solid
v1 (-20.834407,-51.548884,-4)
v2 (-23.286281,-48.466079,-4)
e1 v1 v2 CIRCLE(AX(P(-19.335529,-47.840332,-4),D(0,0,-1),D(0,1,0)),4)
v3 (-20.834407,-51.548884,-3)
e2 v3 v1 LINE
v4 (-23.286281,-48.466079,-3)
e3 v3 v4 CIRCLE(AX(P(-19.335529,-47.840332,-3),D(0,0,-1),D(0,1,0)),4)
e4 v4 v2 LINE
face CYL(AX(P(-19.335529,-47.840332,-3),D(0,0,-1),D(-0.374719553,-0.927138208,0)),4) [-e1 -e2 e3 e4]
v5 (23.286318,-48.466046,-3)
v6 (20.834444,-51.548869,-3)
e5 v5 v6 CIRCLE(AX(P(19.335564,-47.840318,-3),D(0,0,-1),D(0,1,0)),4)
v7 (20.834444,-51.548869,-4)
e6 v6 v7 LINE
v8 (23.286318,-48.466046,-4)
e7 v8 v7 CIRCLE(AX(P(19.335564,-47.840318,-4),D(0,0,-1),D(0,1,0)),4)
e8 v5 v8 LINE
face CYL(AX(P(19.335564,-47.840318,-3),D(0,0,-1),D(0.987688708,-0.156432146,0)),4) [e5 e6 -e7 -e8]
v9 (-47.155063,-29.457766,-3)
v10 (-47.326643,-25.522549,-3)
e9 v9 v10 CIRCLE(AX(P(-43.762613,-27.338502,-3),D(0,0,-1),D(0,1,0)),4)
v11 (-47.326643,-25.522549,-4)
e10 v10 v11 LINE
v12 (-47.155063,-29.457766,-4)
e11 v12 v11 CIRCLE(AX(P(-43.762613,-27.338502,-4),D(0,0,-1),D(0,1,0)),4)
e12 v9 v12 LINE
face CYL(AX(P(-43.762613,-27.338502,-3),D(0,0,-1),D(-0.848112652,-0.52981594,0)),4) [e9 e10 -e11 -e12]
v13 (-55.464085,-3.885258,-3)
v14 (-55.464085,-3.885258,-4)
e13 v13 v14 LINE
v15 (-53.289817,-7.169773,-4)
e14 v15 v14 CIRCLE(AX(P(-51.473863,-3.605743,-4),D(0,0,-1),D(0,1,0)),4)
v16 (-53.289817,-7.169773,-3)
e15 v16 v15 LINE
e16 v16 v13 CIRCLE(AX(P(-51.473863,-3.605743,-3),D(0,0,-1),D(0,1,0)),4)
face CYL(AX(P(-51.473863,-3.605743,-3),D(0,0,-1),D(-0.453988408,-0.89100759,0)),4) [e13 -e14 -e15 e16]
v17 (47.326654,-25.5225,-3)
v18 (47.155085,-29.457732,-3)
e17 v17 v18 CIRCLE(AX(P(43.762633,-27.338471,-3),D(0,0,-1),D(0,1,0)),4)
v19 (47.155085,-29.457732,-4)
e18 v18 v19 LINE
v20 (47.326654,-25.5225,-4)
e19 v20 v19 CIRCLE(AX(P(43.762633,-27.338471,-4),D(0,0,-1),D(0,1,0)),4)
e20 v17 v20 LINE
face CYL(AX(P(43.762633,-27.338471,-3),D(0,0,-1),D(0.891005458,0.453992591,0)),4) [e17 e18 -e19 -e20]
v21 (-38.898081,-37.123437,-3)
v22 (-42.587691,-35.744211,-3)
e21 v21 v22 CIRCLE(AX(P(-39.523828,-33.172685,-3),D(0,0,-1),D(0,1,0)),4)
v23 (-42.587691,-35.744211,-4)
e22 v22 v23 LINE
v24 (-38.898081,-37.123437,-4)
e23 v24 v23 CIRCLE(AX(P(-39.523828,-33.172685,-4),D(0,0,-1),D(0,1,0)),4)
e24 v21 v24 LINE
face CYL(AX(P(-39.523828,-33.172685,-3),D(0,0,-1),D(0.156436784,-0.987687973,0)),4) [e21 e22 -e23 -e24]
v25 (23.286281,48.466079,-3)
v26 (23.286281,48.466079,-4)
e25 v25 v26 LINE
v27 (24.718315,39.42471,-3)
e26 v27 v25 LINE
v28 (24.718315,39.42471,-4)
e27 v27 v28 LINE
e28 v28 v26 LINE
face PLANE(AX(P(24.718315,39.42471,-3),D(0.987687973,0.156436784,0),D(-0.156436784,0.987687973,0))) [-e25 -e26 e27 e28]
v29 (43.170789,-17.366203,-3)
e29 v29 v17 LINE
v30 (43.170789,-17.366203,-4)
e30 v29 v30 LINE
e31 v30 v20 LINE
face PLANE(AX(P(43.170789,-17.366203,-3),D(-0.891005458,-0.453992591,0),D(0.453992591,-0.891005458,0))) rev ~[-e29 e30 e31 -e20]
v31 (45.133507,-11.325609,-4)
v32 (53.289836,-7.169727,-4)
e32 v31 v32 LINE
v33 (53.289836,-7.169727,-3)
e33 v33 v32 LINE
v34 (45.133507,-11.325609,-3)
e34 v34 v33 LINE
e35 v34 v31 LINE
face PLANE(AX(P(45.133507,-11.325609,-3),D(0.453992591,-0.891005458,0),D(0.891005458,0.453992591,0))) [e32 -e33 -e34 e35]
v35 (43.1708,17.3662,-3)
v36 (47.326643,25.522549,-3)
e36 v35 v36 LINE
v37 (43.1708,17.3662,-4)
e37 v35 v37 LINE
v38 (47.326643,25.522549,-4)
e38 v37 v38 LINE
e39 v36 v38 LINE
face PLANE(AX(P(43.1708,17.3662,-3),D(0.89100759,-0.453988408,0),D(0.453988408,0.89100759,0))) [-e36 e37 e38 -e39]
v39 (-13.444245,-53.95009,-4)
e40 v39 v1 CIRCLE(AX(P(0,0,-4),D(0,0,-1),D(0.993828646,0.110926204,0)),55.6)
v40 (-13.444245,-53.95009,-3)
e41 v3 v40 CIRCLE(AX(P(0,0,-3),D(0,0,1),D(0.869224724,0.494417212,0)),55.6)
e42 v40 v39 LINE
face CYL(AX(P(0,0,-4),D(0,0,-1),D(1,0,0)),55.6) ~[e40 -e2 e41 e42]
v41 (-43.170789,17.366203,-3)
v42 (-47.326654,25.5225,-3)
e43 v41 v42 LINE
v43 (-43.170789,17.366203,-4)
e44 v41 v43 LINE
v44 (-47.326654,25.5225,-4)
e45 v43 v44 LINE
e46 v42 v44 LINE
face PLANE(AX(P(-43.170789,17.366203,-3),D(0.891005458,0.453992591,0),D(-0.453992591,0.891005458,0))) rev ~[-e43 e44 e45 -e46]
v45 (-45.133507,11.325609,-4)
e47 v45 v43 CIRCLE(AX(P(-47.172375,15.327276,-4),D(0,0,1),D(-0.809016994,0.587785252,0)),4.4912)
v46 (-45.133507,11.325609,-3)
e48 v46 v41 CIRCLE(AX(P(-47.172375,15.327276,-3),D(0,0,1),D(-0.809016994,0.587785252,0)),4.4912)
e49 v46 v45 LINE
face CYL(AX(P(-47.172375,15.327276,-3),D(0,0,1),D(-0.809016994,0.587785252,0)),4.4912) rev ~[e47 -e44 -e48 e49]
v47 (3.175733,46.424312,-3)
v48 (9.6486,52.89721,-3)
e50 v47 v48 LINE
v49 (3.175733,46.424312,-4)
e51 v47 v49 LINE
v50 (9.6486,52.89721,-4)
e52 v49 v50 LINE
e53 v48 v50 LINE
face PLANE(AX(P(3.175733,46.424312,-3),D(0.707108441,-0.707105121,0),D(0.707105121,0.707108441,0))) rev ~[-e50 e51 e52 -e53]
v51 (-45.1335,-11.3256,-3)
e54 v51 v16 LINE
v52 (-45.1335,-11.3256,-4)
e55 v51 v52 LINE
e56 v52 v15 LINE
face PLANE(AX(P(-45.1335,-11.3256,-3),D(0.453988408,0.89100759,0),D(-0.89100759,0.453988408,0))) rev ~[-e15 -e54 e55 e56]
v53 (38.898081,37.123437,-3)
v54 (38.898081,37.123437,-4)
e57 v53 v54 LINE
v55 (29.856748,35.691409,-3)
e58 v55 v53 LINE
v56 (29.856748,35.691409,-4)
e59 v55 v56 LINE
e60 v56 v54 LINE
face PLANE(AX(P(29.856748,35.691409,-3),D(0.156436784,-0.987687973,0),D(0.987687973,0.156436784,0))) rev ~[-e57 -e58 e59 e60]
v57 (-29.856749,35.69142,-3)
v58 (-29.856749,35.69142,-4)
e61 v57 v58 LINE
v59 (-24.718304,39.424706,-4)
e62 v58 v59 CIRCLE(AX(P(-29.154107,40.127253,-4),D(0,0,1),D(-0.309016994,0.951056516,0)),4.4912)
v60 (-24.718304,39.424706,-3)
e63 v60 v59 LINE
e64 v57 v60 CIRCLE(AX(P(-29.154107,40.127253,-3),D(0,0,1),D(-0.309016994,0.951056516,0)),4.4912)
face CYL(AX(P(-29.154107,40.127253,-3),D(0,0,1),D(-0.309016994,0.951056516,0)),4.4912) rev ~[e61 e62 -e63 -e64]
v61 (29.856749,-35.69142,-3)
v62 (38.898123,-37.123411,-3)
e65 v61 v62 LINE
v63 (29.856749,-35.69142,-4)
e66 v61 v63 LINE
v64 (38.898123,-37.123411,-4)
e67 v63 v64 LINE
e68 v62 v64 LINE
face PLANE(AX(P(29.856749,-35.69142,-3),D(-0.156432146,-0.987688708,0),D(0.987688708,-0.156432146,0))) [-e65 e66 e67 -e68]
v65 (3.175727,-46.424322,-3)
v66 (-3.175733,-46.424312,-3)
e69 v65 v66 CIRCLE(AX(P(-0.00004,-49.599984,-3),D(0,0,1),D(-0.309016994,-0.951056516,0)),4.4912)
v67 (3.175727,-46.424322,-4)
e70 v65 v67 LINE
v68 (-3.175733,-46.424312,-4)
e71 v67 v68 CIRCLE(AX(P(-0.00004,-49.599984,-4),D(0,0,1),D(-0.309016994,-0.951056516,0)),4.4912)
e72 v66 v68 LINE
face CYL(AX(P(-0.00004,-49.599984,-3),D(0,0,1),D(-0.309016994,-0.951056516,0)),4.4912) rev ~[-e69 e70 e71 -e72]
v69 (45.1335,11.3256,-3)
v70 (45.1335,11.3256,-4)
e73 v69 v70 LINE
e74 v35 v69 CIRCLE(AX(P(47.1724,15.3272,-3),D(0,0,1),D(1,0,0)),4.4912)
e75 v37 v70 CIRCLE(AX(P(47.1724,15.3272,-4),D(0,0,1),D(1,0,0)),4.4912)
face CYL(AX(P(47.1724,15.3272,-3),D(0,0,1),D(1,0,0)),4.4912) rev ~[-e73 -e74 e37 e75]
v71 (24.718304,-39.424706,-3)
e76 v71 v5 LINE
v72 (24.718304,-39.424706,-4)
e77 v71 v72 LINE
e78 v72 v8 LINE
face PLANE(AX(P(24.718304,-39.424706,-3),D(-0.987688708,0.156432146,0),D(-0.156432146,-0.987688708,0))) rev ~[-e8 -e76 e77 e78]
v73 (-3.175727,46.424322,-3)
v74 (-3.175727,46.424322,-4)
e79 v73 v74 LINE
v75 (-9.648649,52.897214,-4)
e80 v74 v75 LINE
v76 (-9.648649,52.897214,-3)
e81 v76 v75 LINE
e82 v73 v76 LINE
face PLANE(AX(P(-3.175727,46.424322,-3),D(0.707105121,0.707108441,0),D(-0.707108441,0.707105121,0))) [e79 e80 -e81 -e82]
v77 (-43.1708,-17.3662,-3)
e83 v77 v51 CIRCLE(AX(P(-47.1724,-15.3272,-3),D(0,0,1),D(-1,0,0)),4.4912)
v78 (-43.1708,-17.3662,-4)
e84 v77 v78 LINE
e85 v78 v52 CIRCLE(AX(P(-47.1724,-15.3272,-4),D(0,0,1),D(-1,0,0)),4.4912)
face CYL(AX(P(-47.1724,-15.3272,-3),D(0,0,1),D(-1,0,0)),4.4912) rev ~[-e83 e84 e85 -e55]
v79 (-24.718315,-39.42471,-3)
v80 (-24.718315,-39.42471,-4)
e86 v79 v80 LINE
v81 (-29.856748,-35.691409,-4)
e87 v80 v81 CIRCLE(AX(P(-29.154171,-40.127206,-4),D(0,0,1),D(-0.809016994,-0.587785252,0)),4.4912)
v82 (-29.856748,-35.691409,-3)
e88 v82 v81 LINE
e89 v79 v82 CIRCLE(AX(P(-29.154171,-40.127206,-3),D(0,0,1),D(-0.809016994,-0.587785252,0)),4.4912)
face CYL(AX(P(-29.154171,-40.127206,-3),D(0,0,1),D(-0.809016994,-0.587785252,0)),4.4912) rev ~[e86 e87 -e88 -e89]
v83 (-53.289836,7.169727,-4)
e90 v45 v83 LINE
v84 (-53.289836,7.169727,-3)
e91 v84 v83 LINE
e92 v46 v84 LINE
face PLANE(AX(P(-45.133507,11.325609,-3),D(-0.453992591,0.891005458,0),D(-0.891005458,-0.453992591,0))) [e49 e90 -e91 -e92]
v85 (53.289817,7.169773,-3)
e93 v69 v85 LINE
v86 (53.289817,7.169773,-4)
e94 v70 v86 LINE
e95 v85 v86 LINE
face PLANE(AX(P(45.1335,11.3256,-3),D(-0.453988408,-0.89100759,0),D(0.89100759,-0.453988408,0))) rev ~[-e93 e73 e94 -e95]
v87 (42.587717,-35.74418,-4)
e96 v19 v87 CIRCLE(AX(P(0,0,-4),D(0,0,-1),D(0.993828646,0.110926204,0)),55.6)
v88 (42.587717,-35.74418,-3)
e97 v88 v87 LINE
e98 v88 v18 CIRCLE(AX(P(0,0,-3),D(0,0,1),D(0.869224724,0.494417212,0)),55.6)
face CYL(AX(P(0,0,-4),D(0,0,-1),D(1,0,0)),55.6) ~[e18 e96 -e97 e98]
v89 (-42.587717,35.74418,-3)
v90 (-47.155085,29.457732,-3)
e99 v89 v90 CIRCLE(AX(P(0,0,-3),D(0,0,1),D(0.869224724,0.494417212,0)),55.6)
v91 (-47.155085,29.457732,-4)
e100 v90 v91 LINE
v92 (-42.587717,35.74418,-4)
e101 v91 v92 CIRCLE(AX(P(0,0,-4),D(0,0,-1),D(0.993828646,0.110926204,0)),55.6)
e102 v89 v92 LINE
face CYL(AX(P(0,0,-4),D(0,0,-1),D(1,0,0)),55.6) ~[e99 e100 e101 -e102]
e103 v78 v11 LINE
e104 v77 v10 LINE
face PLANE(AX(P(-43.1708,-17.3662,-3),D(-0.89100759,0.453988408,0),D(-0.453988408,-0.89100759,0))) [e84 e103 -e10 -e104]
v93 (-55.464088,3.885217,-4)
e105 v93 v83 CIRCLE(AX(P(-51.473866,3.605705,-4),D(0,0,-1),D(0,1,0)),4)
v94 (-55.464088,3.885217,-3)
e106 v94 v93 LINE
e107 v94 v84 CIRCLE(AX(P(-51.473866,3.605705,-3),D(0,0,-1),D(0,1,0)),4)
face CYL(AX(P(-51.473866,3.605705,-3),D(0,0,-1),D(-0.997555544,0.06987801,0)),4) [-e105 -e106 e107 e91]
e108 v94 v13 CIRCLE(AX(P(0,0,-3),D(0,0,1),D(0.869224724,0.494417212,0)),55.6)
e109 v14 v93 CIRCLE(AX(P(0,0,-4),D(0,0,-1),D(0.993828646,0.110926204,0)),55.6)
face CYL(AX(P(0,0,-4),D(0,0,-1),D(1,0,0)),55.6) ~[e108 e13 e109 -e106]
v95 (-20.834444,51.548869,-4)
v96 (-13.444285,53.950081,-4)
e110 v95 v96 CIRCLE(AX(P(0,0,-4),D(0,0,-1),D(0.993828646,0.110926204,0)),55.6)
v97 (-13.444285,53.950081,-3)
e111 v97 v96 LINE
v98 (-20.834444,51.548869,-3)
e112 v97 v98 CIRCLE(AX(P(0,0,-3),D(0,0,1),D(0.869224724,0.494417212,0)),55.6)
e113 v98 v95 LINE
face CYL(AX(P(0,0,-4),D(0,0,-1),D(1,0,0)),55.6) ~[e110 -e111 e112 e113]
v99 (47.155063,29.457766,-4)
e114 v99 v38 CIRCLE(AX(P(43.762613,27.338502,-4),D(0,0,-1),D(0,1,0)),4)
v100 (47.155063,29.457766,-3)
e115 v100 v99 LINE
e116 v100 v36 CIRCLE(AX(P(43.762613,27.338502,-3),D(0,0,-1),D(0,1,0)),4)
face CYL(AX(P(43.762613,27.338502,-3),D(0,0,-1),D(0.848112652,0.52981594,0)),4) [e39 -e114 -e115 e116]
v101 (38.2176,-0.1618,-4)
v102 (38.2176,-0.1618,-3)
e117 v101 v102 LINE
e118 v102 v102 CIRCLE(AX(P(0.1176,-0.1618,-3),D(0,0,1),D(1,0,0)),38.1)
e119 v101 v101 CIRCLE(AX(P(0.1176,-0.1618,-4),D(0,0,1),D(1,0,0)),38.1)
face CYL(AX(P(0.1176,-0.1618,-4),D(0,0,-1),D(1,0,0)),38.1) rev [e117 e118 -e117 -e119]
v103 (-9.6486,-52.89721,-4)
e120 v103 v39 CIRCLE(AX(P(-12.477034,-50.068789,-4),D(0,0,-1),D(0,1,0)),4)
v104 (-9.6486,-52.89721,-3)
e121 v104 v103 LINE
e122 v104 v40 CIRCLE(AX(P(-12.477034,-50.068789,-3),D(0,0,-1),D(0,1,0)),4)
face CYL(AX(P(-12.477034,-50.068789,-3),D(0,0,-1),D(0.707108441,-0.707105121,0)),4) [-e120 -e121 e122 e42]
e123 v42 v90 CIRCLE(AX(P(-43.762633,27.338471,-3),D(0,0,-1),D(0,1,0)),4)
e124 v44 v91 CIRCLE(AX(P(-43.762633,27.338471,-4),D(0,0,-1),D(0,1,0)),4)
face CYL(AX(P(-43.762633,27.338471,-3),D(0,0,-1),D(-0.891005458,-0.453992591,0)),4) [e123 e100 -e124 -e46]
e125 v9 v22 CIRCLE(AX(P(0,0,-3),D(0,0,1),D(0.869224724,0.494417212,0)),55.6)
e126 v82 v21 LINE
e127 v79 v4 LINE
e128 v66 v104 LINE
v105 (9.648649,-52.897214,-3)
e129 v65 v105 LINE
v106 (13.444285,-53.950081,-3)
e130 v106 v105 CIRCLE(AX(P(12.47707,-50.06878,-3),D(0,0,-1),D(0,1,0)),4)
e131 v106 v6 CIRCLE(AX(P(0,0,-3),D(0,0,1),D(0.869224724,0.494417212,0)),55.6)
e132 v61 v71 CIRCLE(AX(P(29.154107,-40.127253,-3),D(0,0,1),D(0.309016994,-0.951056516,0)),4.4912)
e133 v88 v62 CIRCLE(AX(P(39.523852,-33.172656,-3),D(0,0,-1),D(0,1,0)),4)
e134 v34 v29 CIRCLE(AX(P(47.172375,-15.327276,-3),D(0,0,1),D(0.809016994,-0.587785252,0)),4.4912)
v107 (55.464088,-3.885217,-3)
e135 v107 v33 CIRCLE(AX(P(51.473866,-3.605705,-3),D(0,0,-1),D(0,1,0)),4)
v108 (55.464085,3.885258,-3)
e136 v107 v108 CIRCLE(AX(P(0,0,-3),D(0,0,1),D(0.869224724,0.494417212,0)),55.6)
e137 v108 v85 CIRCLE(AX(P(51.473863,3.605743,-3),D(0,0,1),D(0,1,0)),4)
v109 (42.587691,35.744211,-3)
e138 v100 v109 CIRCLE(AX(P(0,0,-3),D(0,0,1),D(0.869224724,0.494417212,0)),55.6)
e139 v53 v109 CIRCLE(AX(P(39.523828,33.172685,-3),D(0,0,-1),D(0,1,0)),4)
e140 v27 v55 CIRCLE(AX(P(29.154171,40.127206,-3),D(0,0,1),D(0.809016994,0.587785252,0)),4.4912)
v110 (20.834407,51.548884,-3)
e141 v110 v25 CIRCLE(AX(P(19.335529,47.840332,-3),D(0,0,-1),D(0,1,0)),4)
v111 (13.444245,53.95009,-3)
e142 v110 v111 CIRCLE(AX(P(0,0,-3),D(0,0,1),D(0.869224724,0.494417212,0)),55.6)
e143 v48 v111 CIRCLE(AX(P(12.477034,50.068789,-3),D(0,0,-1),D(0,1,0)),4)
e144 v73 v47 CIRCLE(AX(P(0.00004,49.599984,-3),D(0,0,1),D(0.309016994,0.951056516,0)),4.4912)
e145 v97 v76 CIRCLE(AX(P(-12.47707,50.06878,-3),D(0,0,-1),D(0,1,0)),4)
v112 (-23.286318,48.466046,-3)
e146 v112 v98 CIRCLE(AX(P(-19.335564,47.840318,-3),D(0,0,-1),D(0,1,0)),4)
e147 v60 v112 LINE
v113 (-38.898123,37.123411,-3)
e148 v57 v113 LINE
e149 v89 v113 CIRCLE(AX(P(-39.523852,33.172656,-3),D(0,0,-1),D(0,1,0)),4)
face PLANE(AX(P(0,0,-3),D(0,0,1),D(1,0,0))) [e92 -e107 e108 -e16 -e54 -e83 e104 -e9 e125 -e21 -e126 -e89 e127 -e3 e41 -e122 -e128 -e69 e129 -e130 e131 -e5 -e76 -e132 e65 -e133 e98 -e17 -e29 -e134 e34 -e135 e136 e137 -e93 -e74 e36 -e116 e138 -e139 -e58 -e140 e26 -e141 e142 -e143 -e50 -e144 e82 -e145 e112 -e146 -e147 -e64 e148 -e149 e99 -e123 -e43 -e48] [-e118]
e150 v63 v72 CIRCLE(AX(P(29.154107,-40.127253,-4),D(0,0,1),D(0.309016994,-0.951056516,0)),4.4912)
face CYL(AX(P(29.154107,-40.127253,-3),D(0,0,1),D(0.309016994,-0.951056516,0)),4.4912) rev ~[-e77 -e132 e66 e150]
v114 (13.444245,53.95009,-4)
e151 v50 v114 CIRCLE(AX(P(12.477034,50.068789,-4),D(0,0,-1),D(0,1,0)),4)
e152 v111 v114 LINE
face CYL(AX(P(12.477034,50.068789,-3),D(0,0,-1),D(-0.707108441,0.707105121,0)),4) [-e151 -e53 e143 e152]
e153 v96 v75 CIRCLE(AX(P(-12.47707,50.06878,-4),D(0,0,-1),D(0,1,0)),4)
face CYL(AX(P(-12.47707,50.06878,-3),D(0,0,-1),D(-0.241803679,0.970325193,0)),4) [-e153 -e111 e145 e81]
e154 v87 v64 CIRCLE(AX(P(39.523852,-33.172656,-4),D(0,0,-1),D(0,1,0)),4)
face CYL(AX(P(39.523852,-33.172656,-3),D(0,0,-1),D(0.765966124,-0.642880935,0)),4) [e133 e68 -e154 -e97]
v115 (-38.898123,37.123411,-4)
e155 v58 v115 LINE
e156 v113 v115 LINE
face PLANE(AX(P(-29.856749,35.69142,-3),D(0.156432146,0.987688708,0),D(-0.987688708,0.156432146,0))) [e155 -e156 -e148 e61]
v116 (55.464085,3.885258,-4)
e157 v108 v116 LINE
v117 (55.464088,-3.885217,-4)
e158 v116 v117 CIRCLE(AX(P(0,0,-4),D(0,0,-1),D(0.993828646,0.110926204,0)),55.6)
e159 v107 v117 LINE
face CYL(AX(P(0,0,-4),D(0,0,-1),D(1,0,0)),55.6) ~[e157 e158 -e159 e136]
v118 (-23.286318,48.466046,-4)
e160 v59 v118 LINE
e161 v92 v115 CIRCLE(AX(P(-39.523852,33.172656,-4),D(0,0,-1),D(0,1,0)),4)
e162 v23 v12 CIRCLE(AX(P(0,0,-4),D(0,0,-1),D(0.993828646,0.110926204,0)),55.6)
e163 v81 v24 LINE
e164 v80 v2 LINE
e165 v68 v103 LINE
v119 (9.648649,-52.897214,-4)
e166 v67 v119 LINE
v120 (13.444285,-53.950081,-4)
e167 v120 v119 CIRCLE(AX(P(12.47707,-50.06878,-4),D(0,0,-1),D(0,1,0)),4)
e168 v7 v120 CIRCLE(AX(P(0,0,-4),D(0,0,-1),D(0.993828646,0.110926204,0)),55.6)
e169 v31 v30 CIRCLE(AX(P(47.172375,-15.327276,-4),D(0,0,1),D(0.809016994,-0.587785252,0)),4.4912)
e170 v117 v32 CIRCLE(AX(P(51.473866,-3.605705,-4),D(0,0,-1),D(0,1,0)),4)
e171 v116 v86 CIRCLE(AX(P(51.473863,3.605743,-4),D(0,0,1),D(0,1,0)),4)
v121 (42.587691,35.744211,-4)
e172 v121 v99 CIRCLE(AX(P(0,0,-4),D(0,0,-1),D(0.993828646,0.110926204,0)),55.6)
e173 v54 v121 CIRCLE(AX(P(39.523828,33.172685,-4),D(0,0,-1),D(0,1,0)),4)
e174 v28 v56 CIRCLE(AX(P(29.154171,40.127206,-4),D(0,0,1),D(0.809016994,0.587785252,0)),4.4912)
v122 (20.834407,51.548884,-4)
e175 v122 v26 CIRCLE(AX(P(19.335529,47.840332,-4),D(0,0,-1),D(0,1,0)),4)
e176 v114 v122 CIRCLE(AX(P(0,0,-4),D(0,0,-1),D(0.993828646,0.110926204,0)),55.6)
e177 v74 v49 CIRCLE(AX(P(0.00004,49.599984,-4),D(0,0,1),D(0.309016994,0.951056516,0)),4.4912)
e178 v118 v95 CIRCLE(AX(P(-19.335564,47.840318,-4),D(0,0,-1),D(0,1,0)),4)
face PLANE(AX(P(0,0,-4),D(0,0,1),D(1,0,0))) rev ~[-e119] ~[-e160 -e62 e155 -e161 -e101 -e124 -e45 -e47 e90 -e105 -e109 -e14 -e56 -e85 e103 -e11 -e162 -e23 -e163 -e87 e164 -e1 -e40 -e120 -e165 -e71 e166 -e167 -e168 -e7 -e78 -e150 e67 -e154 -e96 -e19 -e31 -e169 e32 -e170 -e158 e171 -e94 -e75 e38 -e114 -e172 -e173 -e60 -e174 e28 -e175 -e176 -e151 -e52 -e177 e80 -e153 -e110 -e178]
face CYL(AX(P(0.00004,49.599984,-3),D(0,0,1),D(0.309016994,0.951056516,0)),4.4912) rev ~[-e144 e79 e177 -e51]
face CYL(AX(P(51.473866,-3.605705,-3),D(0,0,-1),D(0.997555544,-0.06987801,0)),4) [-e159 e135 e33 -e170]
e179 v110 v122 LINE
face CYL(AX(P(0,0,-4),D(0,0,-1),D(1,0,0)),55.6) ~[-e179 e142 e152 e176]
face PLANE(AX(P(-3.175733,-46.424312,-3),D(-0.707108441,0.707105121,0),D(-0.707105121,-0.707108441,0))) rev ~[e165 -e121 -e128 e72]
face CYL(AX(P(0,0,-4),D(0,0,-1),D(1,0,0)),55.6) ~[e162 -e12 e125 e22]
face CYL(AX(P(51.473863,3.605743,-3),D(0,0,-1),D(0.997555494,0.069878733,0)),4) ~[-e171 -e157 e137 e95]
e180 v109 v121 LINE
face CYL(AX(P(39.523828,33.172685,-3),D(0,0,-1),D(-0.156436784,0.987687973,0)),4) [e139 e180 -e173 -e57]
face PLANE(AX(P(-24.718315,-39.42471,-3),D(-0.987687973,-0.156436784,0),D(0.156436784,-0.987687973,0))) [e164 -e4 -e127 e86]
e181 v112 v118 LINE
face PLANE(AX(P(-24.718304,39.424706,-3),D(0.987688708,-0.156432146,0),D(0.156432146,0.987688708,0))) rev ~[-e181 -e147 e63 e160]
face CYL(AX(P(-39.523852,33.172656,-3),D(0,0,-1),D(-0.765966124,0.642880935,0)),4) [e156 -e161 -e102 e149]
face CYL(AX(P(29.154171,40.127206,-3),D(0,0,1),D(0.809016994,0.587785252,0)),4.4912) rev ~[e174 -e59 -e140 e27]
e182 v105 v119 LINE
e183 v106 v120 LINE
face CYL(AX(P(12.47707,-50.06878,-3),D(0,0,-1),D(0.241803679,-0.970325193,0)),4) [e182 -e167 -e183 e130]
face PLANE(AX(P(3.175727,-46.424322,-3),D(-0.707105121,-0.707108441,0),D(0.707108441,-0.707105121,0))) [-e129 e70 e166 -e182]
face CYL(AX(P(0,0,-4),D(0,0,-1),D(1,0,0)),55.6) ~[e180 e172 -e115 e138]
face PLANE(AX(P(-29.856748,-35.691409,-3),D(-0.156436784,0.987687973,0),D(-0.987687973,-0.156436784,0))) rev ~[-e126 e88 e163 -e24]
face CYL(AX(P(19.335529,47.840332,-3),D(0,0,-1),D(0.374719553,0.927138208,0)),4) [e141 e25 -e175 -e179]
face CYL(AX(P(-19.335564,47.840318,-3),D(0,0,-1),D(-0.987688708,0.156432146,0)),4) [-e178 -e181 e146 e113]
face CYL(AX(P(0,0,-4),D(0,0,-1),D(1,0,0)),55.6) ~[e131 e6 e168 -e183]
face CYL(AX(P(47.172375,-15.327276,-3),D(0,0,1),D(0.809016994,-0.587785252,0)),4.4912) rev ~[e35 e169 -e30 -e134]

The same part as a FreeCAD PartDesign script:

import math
import FreeCAD as App
import Part
import Sketcher

V = App.Vector
Q = App.Units.Quantity


def edges_at(feature, points):
    """Names of the edges that pass closest to the given points."""
    edges = feature.Shape.Edges
    near = lambda p: min(range(len(edges)), key=lambda i: edges[i].distToShape(Part.Vertex(*p))[0])
    return sorted({f"Edge{near(p) + 1}" for p in points})

doc = App.newDocument("Part")
body = doc.addObject("PartDesign::Body", "Body")

sketch1 = doc.addObject("Sketcher::SketchObject", "Sketch")
body.addObject(sketch1)
sketch1.AttachmentSupport = (doc.XY_Plane, [""])
sketch1.MapMode = "FlatFace"
sketch1.AttachmentOffset = App.Placement(V(0, 0, -4), App.Rotation())
sketch1.addGeometry([
    Part.Circle(V(0, 0, 0), V(0, 0, 1), 55.6),
    Part.Circle(V(0.1176, -0.1618, 0), V(0, 0, 1), 38.1),
], False)
sketch1.addConstraint([
    Sketcher.Constraint("Coincident", 0, 3, -1, 1),
    Sketcher.Constraint("Diameter", 0, 111.2),
    Sketcher.Constraint("Diameter", 1, 76.2),
    Sketcher.Constraint("DistanceX", -1, 1, 1, 3, 0.1176),
    Sketcher.Constraint("DistanceY", 1, 3, -1, 1, 0.1618),
])
pad1 = doc.addObject("PartDesign::Pad", "Pad")
body.addObject(pad1)
pad1.Profile = sketch1
pad1.Length = 1

sketch2 = doc.addObject("Sketcher::SketchObject", "Sketch001")
body.addObject(sketch2)
sketch2.AttachmentSupport = (doc.XY_Plane, [""])
sketch2.MapMode = "FlatFace"
sketch2.AttachmentOffset = App.Placement(V(0, 0, -3), App.Rotation())
sketch2.addGeometry([
    Part.ArcOfCircle(Part.Circle(V(47.1724, 15.3272, 0), V(0, 0, 1), 4.4912), math.radians(152.999057), math.radians(243.000194)),
    Part.LineSegment(V(45.1335, 11.3256, 0), V(55.2569, 6.1675, 0)),
    Part.ArcOfCircle(Part.Circle(V(0, 0, 0), V(0, 0, 1), 55.6), math.radians(6.36871), math.radians(29.631328)),
    Part.LineSegment(V(48.3289, 27.4896, 0), V(43.1708, 17.3662, 0)),
], False)
sketch2.addConstraint([
    Sketcher.Constraint("Tangent", 0, 2, 1, 1),
    Sketcher.Constraint("Coincident", 1, 2, 2, 1),
    Sketcher.Constraint("Coincident", 2, 2, 3, 1),
    Sketcher.Constraint("Tangent", 3, 2, 0, 1),
    Sketcher.Constraint("Coincident", 2, 3, -1, 1),
    Sketcher.Constraint("Perpendicular", 1, 3),
    Sketcher.Constraint("Equal", 1, 3),
    Sketcher.Constraint("Radius", 2, 55.6),
    Sketcher.Constraint("Angle", 1, Q("-26.9999 deg")),
    Sketcher.Constraint("Radius", 0, 4.4912),
    Sketcher.Constraint("DistanceX", -1, 1, 1, 2, 55.257),
])
pocket1 = doc.addObject("PartDesign::Pocket", "Pocket")
body.addObject(pocket1)
pocket1.Profile = sketch2
pocket1.Length = 1
doc.recompute()

fillet = doc.addObject("PartDesign::Fillet", "Fillet")
body.addObject(fillet)
fillet.Base = (pocket1, edges_at(pocket1, [(48.329, 27.49, -3.5), (55.257, 6.168, -3.5)]))
fillet.Radius = 4
doc.recompute()

polarpattern = doc.addObject("PartDesign::PolarPattern", "PolarPattern")
body.addObject(polarpattern)
polarpattern.Originals = [pocket1, fillet]
polarpattern.Axis = (doc.Z_Axis, [""])
polarpattern.Angle = 360
polarpattern.Occurrences = 10
body.Tip = polarpattern

doc.recompute()
